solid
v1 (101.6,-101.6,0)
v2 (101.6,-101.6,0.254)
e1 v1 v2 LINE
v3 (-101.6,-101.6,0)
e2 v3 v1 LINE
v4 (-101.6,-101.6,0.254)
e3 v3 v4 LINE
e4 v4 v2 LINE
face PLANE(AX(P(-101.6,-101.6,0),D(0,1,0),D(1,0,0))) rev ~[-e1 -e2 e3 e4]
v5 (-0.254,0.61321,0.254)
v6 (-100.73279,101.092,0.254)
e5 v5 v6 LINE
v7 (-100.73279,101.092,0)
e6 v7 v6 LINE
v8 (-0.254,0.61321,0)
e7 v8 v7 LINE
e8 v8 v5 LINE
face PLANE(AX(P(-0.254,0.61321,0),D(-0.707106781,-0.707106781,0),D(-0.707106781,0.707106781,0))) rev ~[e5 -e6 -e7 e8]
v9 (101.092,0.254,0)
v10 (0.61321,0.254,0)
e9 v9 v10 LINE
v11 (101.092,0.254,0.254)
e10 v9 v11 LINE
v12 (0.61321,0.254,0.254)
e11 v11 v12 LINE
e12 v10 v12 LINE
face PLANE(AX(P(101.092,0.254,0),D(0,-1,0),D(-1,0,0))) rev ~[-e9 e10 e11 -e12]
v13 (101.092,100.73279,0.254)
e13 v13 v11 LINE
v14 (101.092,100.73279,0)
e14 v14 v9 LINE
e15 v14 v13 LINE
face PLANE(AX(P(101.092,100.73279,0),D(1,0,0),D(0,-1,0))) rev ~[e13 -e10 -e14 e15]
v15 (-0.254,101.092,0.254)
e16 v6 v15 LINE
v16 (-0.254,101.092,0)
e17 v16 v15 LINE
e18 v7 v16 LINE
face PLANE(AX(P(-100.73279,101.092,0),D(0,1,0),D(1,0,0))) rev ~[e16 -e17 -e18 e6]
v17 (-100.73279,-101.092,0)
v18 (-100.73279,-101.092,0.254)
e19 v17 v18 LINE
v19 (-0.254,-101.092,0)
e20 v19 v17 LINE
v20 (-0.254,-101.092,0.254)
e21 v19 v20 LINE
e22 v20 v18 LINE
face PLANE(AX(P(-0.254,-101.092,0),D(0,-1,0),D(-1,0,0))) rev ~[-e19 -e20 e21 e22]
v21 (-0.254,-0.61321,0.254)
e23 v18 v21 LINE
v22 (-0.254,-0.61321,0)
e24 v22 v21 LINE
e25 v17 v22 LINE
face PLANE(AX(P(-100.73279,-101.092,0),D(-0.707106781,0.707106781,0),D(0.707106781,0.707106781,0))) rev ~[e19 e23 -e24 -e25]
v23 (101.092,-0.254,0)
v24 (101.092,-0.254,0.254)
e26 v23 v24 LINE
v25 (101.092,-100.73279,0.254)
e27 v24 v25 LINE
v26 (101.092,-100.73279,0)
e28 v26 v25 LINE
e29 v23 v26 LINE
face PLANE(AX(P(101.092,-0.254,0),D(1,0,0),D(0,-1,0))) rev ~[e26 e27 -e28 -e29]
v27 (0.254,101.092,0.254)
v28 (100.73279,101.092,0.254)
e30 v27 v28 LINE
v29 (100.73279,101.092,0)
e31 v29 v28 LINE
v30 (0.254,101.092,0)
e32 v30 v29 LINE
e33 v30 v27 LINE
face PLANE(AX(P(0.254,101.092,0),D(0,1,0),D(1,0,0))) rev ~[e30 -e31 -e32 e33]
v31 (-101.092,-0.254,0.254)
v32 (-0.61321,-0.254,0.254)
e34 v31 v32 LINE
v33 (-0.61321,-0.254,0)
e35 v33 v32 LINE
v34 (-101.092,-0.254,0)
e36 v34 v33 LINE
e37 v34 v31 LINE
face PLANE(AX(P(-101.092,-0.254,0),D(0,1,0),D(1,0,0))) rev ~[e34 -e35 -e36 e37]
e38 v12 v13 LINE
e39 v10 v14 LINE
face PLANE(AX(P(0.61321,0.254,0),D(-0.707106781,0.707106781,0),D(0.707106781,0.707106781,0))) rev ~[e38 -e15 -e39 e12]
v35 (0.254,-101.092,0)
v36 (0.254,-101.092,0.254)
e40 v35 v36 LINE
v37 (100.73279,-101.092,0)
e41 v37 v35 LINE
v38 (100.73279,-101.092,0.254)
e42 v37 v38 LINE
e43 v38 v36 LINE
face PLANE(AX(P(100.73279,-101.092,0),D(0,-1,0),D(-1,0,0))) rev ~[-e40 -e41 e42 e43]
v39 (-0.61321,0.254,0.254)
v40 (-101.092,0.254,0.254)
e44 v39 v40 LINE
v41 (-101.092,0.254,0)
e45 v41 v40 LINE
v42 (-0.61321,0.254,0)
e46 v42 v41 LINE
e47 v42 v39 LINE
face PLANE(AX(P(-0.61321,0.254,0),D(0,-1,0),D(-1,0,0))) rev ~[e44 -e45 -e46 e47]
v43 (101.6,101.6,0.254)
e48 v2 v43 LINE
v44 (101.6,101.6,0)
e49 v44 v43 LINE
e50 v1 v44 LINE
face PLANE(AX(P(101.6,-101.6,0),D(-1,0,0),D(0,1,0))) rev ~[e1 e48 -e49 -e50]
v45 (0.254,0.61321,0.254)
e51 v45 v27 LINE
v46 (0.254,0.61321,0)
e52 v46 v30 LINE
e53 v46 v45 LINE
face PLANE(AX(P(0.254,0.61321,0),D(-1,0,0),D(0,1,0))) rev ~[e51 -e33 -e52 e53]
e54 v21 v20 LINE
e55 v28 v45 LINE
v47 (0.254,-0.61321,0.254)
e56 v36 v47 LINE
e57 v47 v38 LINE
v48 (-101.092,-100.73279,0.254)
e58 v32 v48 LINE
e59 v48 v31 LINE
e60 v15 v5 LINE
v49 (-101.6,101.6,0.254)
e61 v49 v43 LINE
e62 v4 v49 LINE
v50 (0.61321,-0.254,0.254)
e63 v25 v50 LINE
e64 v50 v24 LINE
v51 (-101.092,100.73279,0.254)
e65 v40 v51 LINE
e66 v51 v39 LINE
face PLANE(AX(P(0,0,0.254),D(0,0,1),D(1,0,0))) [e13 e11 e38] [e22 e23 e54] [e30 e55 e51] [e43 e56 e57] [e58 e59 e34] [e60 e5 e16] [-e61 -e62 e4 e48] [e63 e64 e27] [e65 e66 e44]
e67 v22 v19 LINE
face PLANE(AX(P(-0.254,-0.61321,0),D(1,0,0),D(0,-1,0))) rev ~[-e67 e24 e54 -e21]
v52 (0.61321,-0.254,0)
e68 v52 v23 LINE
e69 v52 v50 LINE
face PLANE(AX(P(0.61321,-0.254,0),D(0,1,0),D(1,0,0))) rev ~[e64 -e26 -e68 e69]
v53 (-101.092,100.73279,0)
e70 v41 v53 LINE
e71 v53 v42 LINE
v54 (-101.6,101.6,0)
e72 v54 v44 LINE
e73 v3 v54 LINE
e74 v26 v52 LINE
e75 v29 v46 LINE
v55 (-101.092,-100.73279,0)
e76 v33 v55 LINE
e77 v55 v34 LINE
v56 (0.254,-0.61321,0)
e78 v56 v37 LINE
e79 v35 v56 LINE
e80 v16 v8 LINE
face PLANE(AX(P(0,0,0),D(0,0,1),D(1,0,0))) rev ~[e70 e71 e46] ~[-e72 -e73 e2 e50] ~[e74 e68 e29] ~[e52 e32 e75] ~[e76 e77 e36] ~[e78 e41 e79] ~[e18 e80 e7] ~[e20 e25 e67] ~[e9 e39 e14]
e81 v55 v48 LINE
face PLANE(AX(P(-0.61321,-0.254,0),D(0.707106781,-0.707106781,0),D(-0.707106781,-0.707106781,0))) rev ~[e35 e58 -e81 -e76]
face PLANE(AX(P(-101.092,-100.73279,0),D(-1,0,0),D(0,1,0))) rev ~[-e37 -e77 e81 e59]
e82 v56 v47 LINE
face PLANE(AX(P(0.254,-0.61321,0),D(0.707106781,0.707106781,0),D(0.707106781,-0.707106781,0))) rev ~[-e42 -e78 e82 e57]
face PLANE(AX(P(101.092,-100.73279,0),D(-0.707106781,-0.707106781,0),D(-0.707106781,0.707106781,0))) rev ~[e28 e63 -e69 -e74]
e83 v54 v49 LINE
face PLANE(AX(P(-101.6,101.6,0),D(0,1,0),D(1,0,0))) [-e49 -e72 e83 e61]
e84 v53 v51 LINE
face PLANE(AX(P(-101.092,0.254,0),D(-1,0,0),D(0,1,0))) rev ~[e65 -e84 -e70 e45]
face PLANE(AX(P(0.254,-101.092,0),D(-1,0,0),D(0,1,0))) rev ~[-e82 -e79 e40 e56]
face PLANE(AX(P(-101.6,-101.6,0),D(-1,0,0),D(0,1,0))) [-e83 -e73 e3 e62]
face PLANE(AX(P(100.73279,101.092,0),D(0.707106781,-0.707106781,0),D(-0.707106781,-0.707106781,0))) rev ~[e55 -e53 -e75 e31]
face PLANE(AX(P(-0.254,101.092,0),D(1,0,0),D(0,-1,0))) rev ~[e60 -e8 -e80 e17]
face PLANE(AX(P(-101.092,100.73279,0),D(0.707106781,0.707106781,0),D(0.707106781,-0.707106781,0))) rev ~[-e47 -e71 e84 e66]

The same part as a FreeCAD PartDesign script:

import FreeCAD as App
import Part
import Sketcher

V = App.Vector
Q = App.Units.Quantity


def add_polygon(sketch, points):
    """Adds a closed chain of lines whose ends are joined by coincident constraints."""
    first, n = sketch.GeometryCount, len(points)
    for a, b in zip(points, points[1:] + points[:1]):
        sketch.addGeometry(Part.LineSegment(App.Vector(*a, 0), App.Vector(*b, 0)), False)
    for i in range(n):
        sketch.addConstraint(Sketcher.Constraint("Coincident", first + i, 2, first + (i + 1) % n, 1))

doc = App.newDocument("Part")
body = doc.addObject("PartDesign::Body", "Body")

# Sketch on XY plane
sketch1 = body.newObject("Sketcher::SketchObject", "Sketch")
sketch1.AttachmentSupport = (doc.getObject("XY_Plane"), [""])
sketch1.MapMode = "FlatFace"
add_polygon(sketch1, [(-101.6, 101.6), (-101.6, -101.6), (101.6, -101.6), (101.6, 101.6)])  # lines 0-3
add_polygon(sketch1, [(-0.254, -0.61321), (-0.254, -101.092), (-100.73279, -101.092)])  # lines 4-6
add_polygon(sketch1, [(-101.092, -0.254), (-0.61321, -0.254), (-101.092, -100.73279)])  # lines 7-9
add_polygon(sketch1, [(0.254, -0.61321), (100.73279, -101.092), (0.254, -101.092)])  # lines 10-12
add_polygon(sketch1, [(0.61321, -0.254), (101.092, -0.254), (101.092, -100.73279)])  # lines 13-15
add_polygon(sketch1, [(-0.61321, 0.254), (-101.092, 0.254), (-101.092, 100.73279)])  # lines 16-18
add_polygon(sketch1, [(-0.254, 101.092), (-0.254, 0.61321), (-100.73279, 101.092)])  # lines 19-21
add_polygon(sketch1, [(101.092, 0.254), (0.61321, 0.254), (101.092, 100.73279)])  # lines 22-24
add_polygon(sketch1, [(100.73279, 101.092), (0.254, 0.61321), (0.254, 101.092)])  # lines 25-27
sketch1.addConstraint([
    Sketcher.Constraint("Vertical", 0),
    Sketcher.Constraint("Horizontal", 1),
    Sketcher.Constraint("Vertical", 2),
    Sketcher.Constraint("Horizontal", 3),
    Sketcher.Constraint("Vertical", 4),
    Sketcher.Constraint("Horizontal", 5),
    Sketcher.Constraint("Horizontal", 7),
    Sketcher.Constraint("Vertical", 9),
    Sketcher.Constraint("Horizontal", 11),
    Sketcher.Constraint("Vertical", 12),
    Sketcher.Constraint("Horizontal", 13),
    Sketcher.Constraint("Vertical", 14),
    Sketcher.Constraint("Horizontal", 16),
    Sketcher.Constraint("Vertical", 17),
    Sketcher.Constraint("Vertical", 19),
    Sketcher.Constraint("Horizontal", 21),
    Sketcher.Constraint("Horizontal", 22),
    Sketcher.Constraint("Vertical", 24),
    Sketcher.Constraint("Vertical", 26),
    Sketcher.Constraint("Horizontal", 27),
    Sketcher.Constraint("Symmetric", 0, 2, 2, 2, -1, 1),
    Sketcher.Constraint("Symmetric", 13, 2, 16, 2, -1, 1),
    Sketcher.Constraint("Symmetric", 12, 2, 19, 2, -1, 1),
    Sketcher.Constraint("Symmetric", 10, 2, 20, 2, -1, 1),
    Sketcher.Constraint("Symmetric", 7, 2, 22, 2, -1, 1),
    Sketcher.Constraint("Symmetric", 8, 2, 23, 2, -1, 1),
    Sketcher.Constraint("Symmetric", 6, 2, 25, 2, -1, 1),
    Sketcher.Constraint("Symmetric", 5, 2, 27, 2, -1, 1),
    Sketcher.Constraint("Symmetric", 5, 2, 10, 2, -2),
    Sketcher.Constraint("Symmetric", 6, 2, 12, 2, -2),
    Sketcher.Constraint("Symmetric", 9, 2, 13, 2, -2),
    Sketcher.Constraint("Parallel", 6, 8),
    Sketcher.Constraint("Perpendicular", 8, 10),
    Sketcher.Constraint("Parallel", 10, 15),
    Sketcher.Constraint("Parallel", 15, 18),
    Sketcher.Constraint("Horizontal", 8, 2, 14, 2),
    Sketcher.Constraint("Horizontal", 17, 2, 23, 2),
    Sketcher.Constraint("Equal", 5, 7),
    Sketcher.Constraint("Equal", 3, 0),
    Sketcher.Constraint("DistanceX", 1, 1, 1, 2, Q("8 in")),
    Sketcher.Constraint("DistanceX", 4, 2, -1, 1, Q("0.01 in")),
    Sketcher.Constraint("DistanceY", 4, 2, -1, 1, Q("3.98 in")),
    Sketcher.Constraint("DistanceY", 7, 2, -1, 1, Q("0.01 in")),
    Sketcher.Constraint("DistanceX", 8, 2, -1, 1, Q("3.98 in")),
    Sketcher.Constraint("DistanceX", 5, 2, 5, 1, Q("100.47879 mm")),
])
pad1 = body.newObject("PartDesign::Pad", "Pad")
pad1.Profile = sketch1
pad1.Length = Q("0.01 in")

doc.recompute()
